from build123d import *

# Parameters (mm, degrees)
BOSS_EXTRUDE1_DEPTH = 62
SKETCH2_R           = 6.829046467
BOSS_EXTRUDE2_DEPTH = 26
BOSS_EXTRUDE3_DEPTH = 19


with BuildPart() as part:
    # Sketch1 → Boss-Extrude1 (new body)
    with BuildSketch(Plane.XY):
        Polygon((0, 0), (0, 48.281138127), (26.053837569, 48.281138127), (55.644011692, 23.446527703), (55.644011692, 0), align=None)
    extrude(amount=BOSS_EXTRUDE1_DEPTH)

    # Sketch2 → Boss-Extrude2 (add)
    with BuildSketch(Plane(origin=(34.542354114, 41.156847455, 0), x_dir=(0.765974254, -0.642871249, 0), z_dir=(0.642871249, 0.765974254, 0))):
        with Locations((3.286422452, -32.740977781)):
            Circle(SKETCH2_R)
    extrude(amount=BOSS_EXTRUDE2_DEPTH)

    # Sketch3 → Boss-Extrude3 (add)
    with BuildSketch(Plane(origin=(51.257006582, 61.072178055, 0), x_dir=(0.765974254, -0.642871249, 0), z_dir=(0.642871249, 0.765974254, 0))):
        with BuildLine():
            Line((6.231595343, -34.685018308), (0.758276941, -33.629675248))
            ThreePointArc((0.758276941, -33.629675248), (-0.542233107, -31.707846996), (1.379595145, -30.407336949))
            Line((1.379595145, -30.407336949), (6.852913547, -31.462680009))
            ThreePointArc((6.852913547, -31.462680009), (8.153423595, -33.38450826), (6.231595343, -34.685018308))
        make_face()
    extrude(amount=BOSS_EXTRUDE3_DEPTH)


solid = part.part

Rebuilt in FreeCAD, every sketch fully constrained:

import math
import FreeCAD as App
import Part
import Sketcher

doc = App.newDocument("Part")
body = doc.addObject("PartDesign::Body", "Body")

sketch1 = body.newObject("Sketcher::SketchObject", "Sketch")
sketch1.AttachmentSupport = (doc.getObject("XY_Plane"), [""])
sketch1.MapMode = "FlatFace"
sketch1.addGeometry([
    Part.LineSegment(App.Vector(0, 48, 0), App.Vector(0, 0, 0)),
    Part.LineSegment(App.Vector(0, 0, 0), App.Vector(56, 0, 0)),
    Part.LineSegment(App.Vector(56, 0, 0), App.Vector(56, 23, 0)),
    Part.LineSegment(App.Vector(56, 23, 0), App.Vector(26, 48, 0)),
    Part.LineSegment(App.Vector(26, 48, 0), App.Vector(0, 48, 0)),
], False)
sketch1.addConstraint([
    Sketcher.Constraint("Coincident", 0, 2, 1, 1),
    Sketcher.Constraint("Coincident", 1, 2, 2, 1),
    Sketcher.Constraint("Coincident", 2, 2, 3, 1),
    Sketcher.Constraint("Coincident", 3, 2, 4, 1),
    Sketcher.Constraint("Coincident", 4, 2, 0, 1),
    Sketcher.Constraint("Vertical", 0),
    Sketcher.Constraint("Horizontal", 1),
    Sketcher.Constraint("Vertical", 2),
    Sketcher.Constraint("Horizontal", 4),
    Sketcher.Constraint("Coincident", 0, 2, -1, 1),
    Sketcher.Constraint("DistanceX", 1, 1, 1, 2, 55.644012),
    Sketcher.Constraint("DistanceY", 0, 2, 0, 1, 48.281138),
    Sketcher.Constraint("Distance", 3, 38.630769),
    Sketcher.Constraint("DistanceX", 4, 2, 4, 1, 26.053838),
])
pad1 = body.newObject("PartDesign::Pad", "Pad")
pad1.Profile = sketch1
pad1.Length = 62

sketch2 = body.newObject("Sketcher::SketchObject", "Sketch001")
sketch2.Placement = App.Placement(App.Vector(34.542354, 41.156847, 0), App.Rotation(App.Vector(0.765974254, -0.642871249, 0), App.Vector(0, 0, -1.000000001), App.Vector(0.642871249, 0.765974254, 0), "ZXY"))
sketch2.addGeometry(Part.Circle(App.Vector(3, -33, 0), App.Vector(0, 0, 1), 7), False)
sketch2.addConstraint([
    Sketcher.Constraint("Diameter", 0, 13.658093),
    Sketcher.Constraint("DistanceX", -1, 1, 0, 3, 3.286422),
    Sketcher.Constraint("DistanceY", 0, 3, -1, 1, 32.740978),
])
pad2 = body.newObject("PartDesign::Pad", "Pad001")
pad2.Profile = sketch2
pad2.Length = 26

sketch3 = body.newObject("Sketcher::SketchObject", "Sketch002")
sketch3.Placement = App.Placement(App.Vector(51.257007, 61.072178, 0), App.Rotation(App.Vector(0.765974254, -0.642871249, 0), App.Vector(0, 0, -1.000000001), App.Vector(0.642871249, 0.765974254, 0), "ZXY"))
sketch3.addGeometry([
    Part.LineSegment(App.Vector(0.8, -33.6, 0), App.Vector(6.2, -34.7, 0)),
    Part.ArcOfCircle(Part.Circle(App.Vector(6.5, -33.1, 0), App.Vector(0, 0, 1), 1.6), math.radians(-101), math.radians(79)),
    Part.LineSegment(App.Vector(6.9, -31.5, 0), App.Vector(1.4, -30.4, 0)),
    Part.ArcOfCircle(Part.Circle(App.Vector(1.1, -32, 0), App.Vector(0, 0, 1), 1.6), math.radians(79), math.radians(259)),
], False)
sketch3.addConstraint([
    Sketcher.Constraint("Tangent", 0, 2, 1, 1),
    Sketcher.Constraint("Tangent", 1, 2, 2, 1),
    Sketcher.Constraint("Tangent", 2, 2, 3, 1),
    Sketcher.Constraint("Tangent", 3, 2, 0, 1),
    Sketcher.Constraint("Equal", 1, 3),
    Sketcher.Constraint("Radius", 1, 1.640846),
    Sketcher.Constraint("DistanceX", 2, 2, 0, 2, 4.852),
    Sketcher.Constraint("DistanceY", 1, 3, -1, 1, 33.073849),
    Sketcher.Constraint("DistanceY", 0, 2, -1, 1, 34.685018),
    Sketcher.Constraint("DistanceX", -1, 1, 1, 3, 6.542254),
])
pad3 = body.newObject("PartDesign::Pad", "Pad002")
pad3.Profile = sketch3
pad3.Length = 19

doc.recompute()
